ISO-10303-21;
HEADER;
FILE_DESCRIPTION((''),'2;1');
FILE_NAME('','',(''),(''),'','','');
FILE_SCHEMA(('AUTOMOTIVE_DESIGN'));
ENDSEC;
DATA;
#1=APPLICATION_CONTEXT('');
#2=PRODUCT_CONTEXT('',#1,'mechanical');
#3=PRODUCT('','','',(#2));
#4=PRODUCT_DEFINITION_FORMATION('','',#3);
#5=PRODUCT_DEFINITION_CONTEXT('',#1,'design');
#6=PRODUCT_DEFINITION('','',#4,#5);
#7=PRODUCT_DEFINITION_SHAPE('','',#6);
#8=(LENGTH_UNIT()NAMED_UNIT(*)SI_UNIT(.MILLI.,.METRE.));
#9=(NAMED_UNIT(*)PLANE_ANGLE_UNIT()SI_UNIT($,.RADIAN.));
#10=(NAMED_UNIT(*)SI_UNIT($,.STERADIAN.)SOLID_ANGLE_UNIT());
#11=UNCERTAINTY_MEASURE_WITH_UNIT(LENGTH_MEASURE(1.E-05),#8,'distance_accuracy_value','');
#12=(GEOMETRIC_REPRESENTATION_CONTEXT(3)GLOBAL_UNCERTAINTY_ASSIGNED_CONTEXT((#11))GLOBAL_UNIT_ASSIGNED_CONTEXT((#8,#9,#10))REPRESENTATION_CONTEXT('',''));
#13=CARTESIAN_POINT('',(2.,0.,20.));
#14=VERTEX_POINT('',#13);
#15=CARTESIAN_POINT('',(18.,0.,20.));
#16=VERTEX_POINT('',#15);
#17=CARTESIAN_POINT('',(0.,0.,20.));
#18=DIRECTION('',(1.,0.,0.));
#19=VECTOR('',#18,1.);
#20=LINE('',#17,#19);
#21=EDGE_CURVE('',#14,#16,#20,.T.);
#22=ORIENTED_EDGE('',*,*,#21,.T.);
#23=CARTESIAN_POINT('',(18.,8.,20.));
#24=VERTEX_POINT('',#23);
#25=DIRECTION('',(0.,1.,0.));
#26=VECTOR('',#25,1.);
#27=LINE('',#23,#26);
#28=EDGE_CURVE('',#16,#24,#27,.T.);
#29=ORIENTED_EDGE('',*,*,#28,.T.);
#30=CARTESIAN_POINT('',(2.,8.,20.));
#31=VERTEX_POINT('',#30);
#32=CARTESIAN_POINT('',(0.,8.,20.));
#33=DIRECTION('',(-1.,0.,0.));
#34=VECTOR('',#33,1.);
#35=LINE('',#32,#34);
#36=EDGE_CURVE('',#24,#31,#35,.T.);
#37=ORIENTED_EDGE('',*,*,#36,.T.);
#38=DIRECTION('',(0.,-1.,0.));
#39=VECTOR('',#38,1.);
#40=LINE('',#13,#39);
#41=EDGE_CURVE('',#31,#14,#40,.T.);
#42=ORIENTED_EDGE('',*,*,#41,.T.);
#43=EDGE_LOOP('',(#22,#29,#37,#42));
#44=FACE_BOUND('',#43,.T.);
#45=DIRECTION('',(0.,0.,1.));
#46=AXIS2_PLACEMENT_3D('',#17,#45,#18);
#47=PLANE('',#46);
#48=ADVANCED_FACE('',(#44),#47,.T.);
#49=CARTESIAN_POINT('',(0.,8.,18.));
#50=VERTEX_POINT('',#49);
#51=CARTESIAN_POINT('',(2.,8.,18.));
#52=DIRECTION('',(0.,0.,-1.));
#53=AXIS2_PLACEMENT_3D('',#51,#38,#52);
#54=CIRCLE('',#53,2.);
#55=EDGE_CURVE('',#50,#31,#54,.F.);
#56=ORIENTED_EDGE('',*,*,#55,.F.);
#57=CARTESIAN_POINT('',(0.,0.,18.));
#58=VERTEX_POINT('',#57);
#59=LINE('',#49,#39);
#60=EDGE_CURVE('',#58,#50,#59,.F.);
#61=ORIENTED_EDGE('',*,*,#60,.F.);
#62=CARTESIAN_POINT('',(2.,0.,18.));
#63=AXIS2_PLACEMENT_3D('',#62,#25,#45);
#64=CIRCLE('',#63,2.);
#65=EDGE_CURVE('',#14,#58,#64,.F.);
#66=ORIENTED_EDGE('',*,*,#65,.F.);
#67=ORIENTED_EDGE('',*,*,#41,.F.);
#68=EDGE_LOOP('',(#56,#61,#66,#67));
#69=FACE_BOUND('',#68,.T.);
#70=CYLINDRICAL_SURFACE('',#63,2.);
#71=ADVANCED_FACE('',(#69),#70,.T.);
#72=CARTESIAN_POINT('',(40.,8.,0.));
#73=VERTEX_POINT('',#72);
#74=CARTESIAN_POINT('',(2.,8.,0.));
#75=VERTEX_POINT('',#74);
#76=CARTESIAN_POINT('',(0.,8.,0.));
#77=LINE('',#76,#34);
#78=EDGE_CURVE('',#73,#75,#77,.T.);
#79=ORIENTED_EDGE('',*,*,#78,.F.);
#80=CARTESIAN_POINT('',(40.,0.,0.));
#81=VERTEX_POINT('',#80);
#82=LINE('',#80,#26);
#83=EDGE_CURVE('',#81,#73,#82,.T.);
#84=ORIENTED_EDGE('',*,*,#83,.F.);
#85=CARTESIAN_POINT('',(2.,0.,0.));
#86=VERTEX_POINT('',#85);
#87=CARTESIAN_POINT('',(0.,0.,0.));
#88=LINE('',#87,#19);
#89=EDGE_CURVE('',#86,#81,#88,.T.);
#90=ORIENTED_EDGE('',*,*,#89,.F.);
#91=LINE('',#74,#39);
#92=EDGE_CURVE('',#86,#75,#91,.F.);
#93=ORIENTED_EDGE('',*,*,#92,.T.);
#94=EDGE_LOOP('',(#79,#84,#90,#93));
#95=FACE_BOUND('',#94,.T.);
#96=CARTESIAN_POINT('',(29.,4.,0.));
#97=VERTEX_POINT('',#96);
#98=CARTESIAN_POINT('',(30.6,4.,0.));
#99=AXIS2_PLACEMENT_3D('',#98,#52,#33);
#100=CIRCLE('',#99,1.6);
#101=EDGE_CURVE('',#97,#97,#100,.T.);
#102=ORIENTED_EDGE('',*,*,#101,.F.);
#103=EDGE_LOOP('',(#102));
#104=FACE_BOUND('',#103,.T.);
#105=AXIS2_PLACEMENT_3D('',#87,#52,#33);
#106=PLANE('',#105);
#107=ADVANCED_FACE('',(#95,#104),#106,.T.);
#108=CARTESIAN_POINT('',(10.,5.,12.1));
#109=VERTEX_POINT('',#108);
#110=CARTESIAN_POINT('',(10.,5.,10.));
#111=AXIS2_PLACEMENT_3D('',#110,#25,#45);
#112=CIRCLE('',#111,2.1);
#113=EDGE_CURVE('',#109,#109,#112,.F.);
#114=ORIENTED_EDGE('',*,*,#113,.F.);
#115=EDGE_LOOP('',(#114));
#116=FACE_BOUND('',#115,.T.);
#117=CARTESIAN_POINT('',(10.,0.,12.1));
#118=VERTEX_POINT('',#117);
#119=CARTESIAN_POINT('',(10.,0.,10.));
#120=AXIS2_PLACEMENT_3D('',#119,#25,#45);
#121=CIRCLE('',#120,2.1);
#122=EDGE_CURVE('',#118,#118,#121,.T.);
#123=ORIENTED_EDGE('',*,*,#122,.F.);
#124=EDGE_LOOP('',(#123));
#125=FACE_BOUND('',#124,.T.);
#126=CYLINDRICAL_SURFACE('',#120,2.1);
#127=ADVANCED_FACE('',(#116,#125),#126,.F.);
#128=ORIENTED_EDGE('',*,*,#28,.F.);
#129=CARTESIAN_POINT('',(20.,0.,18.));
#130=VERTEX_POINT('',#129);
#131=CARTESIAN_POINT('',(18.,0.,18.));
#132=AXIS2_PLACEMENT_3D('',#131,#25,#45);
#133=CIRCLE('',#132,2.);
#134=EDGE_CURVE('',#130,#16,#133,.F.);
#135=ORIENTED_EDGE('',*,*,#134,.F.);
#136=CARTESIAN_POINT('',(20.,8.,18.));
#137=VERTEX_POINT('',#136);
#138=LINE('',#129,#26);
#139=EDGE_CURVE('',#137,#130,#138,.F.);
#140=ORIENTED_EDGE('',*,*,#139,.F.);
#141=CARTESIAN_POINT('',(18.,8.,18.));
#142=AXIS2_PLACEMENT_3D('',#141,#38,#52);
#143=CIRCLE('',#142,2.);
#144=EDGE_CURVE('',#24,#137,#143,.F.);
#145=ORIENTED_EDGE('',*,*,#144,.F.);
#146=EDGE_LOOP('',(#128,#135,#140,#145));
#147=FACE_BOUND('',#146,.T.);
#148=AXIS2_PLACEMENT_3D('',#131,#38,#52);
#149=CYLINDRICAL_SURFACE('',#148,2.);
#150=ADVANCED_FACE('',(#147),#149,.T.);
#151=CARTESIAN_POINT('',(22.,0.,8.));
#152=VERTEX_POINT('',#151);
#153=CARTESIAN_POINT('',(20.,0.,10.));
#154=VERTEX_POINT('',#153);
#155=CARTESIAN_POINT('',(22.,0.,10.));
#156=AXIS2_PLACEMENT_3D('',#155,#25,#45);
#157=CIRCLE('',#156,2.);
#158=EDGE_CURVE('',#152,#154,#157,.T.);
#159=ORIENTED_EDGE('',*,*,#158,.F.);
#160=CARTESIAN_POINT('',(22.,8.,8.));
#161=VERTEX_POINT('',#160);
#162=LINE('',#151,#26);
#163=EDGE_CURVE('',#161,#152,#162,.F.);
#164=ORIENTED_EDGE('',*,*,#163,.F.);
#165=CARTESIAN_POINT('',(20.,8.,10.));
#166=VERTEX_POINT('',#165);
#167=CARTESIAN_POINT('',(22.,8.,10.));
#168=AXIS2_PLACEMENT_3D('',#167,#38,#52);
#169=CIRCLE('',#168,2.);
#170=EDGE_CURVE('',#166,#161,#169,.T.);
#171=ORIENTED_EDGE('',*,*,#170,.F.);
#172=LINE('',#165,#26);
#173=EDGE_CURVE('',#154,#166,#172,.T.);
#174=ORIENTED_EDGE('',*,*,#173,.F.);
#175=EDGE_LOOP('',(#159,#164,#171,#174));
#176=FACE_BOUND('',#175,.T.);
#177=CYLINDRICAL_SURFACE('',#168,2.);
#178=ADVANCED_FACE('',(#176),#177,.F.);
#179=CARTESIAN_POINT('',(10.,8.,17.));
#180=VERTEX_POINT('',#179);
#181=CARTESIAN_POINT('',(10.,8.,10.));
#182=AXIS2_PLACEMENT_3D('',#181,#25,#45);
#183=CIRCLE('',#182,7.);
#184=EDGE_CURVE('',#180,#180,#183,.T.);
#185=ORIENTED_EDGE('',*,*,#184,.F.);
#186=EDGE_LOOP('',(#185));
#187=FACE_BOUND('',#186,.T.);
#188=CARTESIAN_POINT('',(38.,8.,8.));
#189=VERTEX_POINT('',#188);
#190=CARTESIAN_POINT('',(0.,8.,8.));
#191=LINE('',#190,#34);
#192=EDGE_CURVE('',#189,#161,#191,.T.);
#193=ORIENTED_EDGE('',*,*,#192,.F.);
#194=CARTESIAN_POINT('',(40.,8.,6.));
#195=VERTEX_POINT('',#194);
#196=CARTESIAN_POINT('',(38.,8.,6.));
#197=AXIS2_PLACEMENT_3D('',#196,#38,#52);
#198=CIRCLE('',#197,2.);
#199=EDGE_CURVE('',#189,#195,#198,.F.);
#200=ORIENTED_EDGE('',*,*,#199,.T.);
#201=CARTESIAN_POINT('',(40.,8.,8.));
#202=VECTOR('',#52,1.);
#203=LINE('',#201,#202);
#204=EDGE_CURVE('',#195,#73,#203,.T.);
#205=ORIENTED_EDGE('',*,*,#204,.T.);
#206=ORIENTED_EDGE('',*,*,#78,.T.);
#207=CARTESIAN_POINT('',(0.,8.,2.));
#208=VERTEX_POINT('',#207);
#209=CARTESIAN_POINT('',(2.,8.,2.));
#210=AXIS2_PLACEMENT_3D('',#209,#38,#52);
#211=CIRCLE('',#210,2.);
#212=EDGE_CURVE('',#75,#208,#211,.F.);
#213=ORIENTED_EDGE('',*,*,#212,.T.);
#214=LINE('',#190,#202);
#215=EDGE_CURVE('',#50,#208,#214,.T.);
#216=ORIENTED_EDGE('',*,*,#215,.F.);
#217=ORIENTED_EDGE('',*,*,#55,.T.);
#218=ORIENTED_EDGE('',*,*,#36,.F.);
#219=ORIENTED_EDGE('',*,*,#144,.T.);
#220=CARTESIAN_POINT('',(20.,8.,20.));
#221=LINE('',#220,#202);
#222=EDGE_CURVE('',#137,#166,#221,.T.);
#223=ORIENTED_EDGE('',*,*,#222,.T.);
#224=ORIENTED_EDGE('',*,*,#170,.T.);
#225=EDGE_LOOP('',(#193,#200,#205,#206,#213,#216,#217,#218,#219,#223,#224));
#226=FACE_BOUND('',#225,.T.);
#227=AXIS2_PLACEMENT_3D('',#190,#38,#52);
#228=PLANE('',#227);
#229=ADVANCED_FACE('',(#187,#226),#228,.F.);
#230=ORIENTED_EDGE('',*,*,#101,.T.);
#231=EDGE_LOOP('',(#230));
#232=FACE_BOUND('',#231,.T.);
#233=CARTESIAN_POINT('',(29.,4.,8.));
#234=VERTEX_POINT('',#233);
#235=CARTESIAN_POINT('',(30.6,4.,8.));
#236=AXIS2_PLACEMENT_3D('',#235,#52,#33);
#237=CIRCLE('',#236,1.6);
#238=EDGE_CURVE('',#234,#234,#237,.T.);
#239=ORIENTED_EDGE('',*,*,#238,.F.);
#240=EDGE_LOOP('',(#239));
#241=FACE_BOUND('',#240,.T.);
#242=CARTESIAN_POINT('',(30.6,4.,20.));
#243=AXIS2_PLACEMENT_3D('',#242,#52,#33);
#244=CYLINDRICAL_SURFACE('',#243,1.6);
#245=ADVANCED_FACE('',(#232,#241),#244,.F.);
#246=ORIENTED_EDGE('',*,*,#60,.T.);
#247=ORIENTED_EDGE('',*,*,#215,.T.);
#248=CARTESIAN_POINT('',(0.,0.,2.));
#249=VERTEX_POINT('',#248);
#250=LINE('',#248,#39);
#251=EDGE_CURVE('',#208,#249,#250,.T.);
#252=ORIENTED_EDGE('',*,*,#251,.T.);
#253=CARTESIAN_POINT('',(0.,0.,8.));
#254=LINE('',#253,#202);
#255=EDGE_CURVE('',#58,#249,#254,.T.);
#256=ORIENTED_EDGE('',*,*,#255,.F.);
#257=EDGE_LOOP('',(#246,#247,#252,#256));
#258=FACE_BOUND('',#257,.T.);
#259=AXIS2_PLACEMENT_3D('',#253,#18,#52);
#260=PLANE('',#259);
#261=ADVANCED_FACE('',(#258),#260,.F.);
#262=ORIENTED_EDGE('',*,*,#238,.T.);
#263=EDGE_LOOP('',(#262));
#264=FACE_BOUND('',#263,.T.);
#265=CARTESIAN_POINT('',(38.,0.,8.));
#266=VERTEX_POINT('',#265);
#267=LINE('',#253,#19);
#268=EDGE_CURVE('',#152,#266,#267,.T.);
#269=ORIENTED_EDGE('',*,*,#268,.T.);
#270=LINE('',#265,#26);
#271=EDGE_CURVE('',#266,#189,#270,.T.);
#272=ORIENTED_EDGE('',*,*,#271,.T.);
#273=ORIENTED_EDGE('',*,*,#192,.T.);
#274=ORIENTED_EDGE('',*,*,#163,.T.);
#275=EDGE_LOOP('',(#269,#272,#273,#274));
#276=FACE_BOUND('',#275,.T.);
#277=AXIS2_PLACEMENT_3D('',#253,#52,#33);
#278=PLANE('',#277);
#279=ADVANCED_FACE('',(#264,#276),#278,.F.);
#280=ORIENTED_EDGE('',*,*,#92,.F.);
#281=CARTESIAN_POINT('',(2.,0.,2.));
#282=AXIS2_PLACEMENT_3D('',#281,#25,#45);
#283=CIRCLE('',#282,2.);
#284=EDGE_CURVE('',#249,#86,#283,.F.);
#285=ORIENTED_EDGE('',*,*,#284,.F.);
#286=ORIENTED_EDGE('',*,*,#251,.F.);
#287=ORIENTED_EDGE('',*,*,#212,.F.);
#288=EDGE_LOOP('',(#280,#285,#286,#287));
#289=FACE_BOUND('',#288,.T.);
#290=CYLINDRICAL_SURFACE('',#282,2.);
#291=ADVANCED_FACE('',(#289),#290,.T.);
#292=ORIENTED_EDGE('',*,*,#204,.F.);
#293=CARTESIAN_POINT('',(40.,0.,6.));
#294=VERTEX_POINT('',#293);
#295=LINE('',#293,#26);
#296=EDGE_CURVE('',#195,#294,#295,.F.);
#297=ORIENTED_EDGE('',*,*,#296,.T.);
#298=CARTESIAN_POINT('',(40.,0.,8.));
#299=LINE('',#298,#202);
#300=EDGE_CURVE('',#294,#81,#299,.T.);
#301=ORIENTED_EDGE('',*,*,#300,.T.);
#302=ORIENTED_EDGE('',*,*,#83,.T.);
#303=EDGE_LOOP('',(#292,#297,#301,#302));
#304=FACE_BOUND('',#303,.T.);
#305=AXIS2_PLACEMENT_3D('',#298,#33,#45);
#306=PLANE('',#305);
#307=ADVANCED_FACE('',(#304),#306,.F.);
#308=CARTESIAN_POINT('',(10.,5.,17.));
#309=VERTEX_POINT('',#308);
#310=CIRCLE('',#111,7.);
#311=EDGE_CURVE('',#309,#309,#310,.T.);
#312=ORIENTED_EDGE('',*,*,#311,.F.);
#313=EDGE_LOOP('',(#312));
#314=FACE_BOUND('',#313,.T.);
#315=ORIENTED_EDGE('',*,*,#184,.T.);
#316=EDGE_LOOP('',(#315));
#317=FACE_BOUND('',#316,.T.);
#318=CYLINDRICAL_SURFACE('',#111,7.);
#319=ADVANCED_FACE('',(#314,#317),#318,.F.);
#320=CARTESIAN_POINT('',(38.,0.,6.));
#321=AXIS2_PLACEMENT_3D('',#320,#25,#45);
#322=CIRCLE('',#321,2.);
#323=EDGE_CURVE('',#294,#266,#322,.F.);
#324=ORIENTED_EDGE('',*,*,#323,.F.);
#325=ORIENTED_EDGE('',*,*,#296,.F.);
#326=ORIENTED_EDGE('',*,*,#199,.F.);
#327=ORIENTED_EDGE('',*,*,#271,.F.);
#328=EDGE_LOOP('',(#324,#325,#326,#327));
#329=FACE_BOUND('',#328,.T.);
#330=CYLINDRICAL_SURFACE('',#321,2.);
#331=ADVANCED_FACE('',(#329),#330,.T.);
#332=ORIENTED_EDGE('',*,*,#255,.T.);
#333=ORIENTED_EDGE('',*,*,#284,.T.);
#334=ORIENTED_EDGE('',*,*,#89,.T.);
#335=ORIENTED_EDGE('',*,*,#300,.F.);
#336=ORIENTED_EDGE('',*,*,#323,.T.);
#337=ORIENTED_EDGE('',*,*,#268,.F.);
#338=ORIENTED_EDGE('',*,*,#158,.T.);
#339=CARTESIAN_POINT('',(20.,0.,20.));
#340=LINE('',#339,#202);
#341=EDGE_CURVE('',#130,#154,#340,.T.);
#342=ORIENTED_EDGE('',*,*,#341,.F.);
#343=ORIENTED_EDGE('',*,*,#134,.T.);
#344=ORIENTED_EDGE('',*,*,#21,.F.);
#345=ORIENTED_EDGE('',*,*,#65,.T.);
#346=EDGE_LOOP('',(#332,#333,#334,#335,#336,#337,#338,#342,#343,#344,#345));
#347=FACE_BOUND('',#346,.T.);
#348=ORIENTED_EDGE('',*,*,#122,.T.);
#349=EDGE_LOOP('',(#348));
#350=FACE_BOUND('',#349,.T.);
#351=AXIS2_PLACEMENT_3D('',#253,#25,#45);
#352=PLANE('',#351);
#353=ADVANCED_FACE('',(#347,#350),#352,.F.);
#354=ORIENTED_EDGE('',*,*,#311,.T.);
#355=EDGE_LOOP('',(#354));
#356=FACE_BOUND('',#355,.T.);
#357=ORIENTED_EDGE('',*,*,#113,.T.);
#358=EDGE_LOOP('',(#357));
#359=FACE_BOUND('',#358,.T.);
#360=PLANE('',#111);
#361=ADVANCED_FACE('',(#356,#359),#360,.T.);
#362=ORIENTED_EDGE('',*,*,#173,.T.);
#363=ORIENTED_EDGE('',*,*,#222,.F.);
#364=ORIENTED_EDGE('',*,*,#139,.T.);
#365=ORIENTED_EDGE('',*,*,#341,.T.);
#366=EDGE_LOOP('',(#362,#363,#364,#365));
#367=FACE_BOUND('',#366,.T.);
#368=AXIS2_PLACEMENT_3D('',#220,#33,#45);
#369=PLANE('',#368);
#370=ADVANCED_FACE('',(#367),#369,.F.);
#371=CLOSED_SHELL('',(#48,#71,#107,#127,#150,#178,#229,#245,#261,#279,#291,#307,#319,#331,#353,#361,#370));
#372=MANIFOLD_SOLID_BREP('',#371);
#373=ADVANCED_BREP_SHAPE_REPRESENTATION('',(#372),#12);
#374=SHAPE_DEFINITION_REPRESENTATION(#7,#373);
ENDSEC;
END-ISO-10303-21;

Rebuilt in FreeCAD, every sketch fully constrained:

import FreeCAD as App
import Part
import Sketcher
Q = App.Units.Quantity


def edges_at(feature, points):
    """Names of the edges that pass closest to the given points."""
    edges = feature.Shape.Edges
    near = lambda p: min(range(len(edges)), key=lambda i: edges[i].distToShape(Part.Vertex(*p))[0])
    return sorted({f"Edge{near(p) + 1}" for p in points})


def add_polygon(sketch, points):
    """Adds a closed chain of lines whose ends are joined by coincident constraints."""
    first, n = sketch.GeometryCount, len(points)
    for a, b in zip(points, points[1:] + points[:1]):
        sketch.addGeometry(Part.LineSegment(App.Vector(*a, 0), App.Vector(*b, 0)), False)
    for i in range(n):
        sketch.addConstraint(Sketcher.Constraint("Coincident", first + i, 2, first + (i + 1) % n, 1))

doc = App.newDocument("Part")
body = doc.addObject("PartDesign::Body", "Body")

# Sketch on XY plane
sketch1 = body.newObject("Sketcher::SketchObject", "Sketch")
sketch1.AttachmentSupport = (doc.getObject("XY_Plane"), [""])
sketch1.MapMode = "FlatFace"
add_polygon(sketch1, [(0, 8), (0, 0), (40, 0), (40, 8)])  # lines 0-3
sketch1.addConstraint(Sketcher.Constraint("Vertical", 0))
sketch1.addConstraint(Sketcher.Constraint("Horizontal", 1))
sketch1.addConstraint(Sketcher.Constraint("Vertical", 2))
sketch1.addConstraint(Sketcher.Constraint("Horizontal", 3))
sketch1.addConstraint(Sketcher.Constraint("Coincident", 0, 2, -1, 1))
sketch1.addConstraint(Sketcher.Constraint("DistanceX", 1, 1, 1, 2, Q("40 mm")))
sketch1.addConstraint(Sketcher.Constraint("DistanceY", 0, 2, 0, 1, Q("8 mm")))
pad1 = body.newObject("PartDesign::Pad", "Pad")
pad1.Profile = sketch1
pad1.Length = 8

# Sketch on XY plane
sketch2 = body.newObject("Sketcher::SketchObject", "Sketch001")
sketch2.AttachmentSupport = (doc.getObject("XY_Plane"), [""])
sketch2.MapMode = "FlatFace"
sketch2.AttachmentOffset = App.Placement(App.Vector(0, 0, 8), App.Rotation())
add_polygon(sketch2, [(0, 8), (0, 0), (20, 0), (20, 8)])  # lines 0-3
sketch2.addConstraint(Sketcher.Constraint("Vertical", 0))
sketch2.addConstraint(Sketcher.Constraint("Horizontal", 1))
sketch2.addConstraint(Sketcher.Constraint("Vertical", 2))
sketch2.addConstraint(Sketcher.Constraint("Horizontal", 3))
sketch2.addConstraint(Sketcher.Constraint("Coincident", 0, 2, -1, 1))
sketch2.addConstraint(Sketcher.Constraint("DistanceX", 1, 1, 1, 2, Q("20 mm")))
sketch2.addConstraint(Sketcher.Constraint("DistanceY", 0, 2, 0, 1, Q("8 mm")))
pad2 = body.newObject("PartDesign::Pad", "Pad001")
pad2.Profile = sketch2
pad2.Length = 12
doc.recompute()

fillet = body.newObject("PartDesign::Fillet", "Fillet")
fillet.Base = (pad2, edges_at(pad2, [
    (0, 4, 0),
    (40, 4, 8),
    (0, 4, 20),
    (20, 4, 20),
    (20, 4, 8),
]))
fillet.Radius = 2

# Sketch on XZ plane
sketch3 = body.newObject("Sketcher::SketchObject", "Sketch002")
sketch3.AttachmentSupport = (doc.getObject("XZ_Plane"), [""])
sketch3.MapMode = "FlatFace"
sketch3.AttachmentOffset = App.Placement(App.Vector(0, 0, -8), App.Rotation())
sketch3.addGeometry(Part.Circle(App.Vector(10, 10, 0), App.Vector(0, 0, 1), 2.1), False)
sketch3.addConstraint(Sketcher.Constraint("Diameter", 0, Q("4.2 mm")))
sketch3.addConstraint(Sketcher.Constraint("DistanceX", -1, 1, 0, 3, Q("10 mm")))
sketch3.addConstraint(Sketcher.Constraint("DistanceY", -1, 1, 0, 3, Q("10 mm")))
pocket1 = body.newObject("PartDesign::Pocket", "Pocket")
pocket1.Profile = sketch3
pocket1.Type = "ThroughAll"
pocket1.Reversed = True

# Sketch on XY plane
sketch4 = body.newObject("Sketcher::SketchObject", "Sketch003")
sketch4.AttachmentSupport = (doc.getObject("XY_Plane"), [""])
sketch4.MapMode = "FlatFace"
sketch4.addGeometry(Part.Circle(App.Vector(30.6, 4, 0), App.Vector(0, 0, 1), 1.6), False)
sketch4.addConstraint(Sketcher.Constraint("Diameter", 0, Q("3.2 mm")))
sketch4.addConstraint(Sketcher.Constraint("DistanceY", -1, 1, 0, 3, Q("4 mm")))
sketch4.addConstraint(Sketcher.Constraint("DistanceX", -1, 1, 0, 3, Q("30.6 mm")))
pocket2 = body.newObject("PartDesign::Pocket", "Pocket001")
pocket2.Profile = sketch4
pocket2.Type = "ThroughAll"
pocket2.Reversed = True

# Sketch on XZ plane
sketch5 = body.newObject("Sketcher::SketchObject", "Sketch004")
sketch5.AttachmentSupport = (doc.getObject("XZ_Plane"), [""])
sketch5.MapMode = "FlatFace"
sketch5.AttachmentOffset = App.Placement(App.Vector(0, 0, -8), App.Rotation())
sketch5.addGeometry(Part.Circle(App.Vector(10, 10, 0), App.Vector(0, 0, 1), 7), False)
sketch5.addConstraint(Sketcher.Constraint("Diameter", 0, Q("14 mm")))
sketch5.addConstraint(Sketcher.Constraint("DistanceX", -1, 1, 0, 3, Q("10 mm")))
sketch5.addConstraint(Sketcher.Constraint("DistanceY", -1, 1, 0, 3, Q("10 mm")))
pocket3 = body.newObject("PartDesign::Pocket", "Pocket002")
pocket3.Profile = sketch5
pocket3.Length = 3
pocket3.Reversed = True

doc.recompute()
